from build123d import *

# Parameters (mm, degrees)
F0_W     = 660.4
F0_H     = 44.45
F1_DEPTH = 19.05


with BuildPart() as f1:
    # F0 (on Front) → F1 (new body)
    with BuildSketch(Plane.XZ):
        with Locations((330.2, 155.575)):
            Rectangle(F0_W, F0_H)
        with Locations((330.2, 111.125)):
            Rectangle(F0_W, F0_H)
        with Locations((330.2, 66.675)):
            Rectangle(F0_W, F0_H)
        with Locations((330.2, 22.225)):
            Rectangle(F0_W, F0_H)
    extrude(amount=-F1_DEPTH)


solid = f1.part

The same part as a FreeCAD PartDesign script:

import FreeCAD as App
import Part
import Sketcher
Q = App.Units.Quantity

doc = App.newDocument("Part")
body = doc.addObject("PartDesign::Body", "Body")

# Sketch on XZ plane
sketch1 = body.newObject("Sketcher::SketchObject", "Sketch")
sketch1.AttachmentSupport = (doc.getObject("XZ_Plane"), [""])
sketch1.MapMode = "FlatFace"
sketch1.addGeometry([
    Part.LineSegment(App.Vector(0, 178, 0), App.Vector(0, 0, 0)),
    Part.LineSegment(App.Vector(0, 0, 0), App.Vector(660, 0, 0)),
    Part.LineSegment(App.Vector(660, 0, 0), App.Vector(660, 178, 0)),
    Part.LineSegment(App.Vector(660, 178, 0), App.Vector(0, 178, 0)),
], False)
sketch1.addConstraint([
    Sketcher.Constraint("Coincident", 0, 2, 1, 1),
    Sketcher.Constraint("Coincident", 1, 2, 2, 1),
    Sketcher.Constraint("Coincident", 2, 2, 3, 1),
    Sketcher.Constraint("Coincident", 3, 2, 0, 1),
    Sketcher.Constraint("Vertical", 0),
    Sketcher.Constraint("Horizontal", 1),
    Sketcher.Constraint("Vertical", 2),
    Sketcher.Constraint("Horizontal", 3),
    Sketcher.Constraint("Coincident", 0, 2, -1, 1),
    Sketcher.Constraint("DistanceX", 1, 1, 1, 2, Q("26 in")),
    Sketcher.Constraint("DistanceY", 0, 2, 0, 1, Q("7 in")),
])
pad1 = body.newObject("PartDesign::Pad", "Pad")
pad1.Profile = sketch1
pad1.Length = Q("0.75 in")
pad1.Reversed = True

doc.recompute()
